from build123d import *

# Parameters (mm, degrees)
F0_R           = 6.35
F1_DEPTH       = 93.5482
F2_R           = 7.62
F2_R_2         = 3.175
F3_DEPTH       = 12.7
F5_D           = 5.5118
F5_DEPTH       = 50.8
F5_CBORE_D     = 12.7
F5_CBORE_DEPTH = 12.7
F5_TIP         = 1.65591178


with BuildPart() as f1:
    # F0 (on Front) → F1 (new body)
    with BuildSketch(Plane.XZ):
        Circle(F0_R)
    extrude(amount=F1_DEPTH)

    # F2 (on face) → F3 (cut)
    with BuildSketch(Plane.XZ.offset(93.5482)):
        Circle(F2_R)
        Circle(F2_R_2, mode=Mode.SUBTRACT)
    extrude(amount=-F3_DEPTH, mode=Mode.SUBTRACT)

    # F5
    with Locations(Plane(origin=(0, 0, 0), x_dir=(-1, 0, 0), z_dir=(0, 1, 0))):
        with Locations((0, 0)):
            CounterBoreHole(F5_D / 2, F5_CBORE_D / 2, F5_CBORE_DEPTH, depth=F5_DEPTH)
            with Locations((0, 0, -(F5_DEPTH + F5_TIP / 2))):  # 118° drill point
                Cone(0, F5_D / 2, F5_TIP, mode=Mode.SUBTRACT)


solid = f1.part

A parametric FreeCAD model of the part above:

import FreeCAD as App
import Part
import Sketcher

V = App.Vector
Q = App.Units.Quantity

doc = App.newDocument("Part")
params = doc.addObject("Spreadsheet::Sheet", "Params")
for row, (alias, value) in enumerate([
    ("sketch1_diameter", "0.5 in"),
    ("pad1_length", "3.683 in"),
    ("sketch2_diameter", "0.6 in"),
    ("sketch2_diameter2", "0.25 in"),
    ("pocket1_length", "0.5 in"),
    ("sketch3_diameter", "0.217 in"),
    ("hole_diameter", "0.217 in"),
    ("hole_depth", "2 in"),
    ("hole_cbore_diameter", "0.5 in"),
    ("hole_cbore_depth", "0.5 in"),
], start=1):
    params.set(f"A{row}", alias)
    params.set(f"B{row}", "=" + value)
    params.setAlias(f"B{row}", alias)

body = doc.addObject("PartDesign::Body", "Body")

# Sketch on XZ plane
sketch1 = doc.addObject("Sketcher::SketchObject", "Sketch")
body.addObject(sketch1)
sketch1.AttachmentSupport = (doc.XZ_Plane, [""])
sketch1.MapMode = "FlatFace"
sketch1.addGeometry(Part.Circle(V(0, 0, 0), V(0, 0, 1), 6), False)
sketch1.addConstraint([
    Sketcher.Constraint("Coincident", 0, 3, -1, 1),
    Sketcher.Constraint("Diameter", 0, Q("0.5 in")),
])
sketch1.setExpression("Constraints[1]", "Params.sketch1_diameter")
pad1 = doc.addObject("PartDesign::Pad", "Pad")
body.addObject(pad1)
pad1.Profile = sketch1
pad1.setExpression("Length", "Params.pad1_length")

# Sketch on XZ plane
sketch2 = doc.addObject("Sketcher::SketchObject", "Sketch001")
body.addObject(sketch2)
sketch2.AttachmentSupport = (doc.XZ_Plane, [""])
sketch2.MapMode = "FlatFace"
sketch2.AttachmentOffset = App.Placement(V(0, 0, 3.683 * 25.4), App.Rotation())
sketch2.addGeometry([
    Part.Circle(V(0, 0, 0), V(0, 0, 1), 7.6),
    Part.Circle(V(0, 0, 0), V(0, 0, 1), 3.2),
], False)
sketch2.addConstraint([
    Sketcher.Constraint("Coincident", 0, 3, -1, 1),
    Sketcher.Constraint("Coincident", 1, 3, -1, 1),
    Sketcher.Constraint("Diameter", 0, Q("0.6 in")),
    Sketcher.Constraint("Diameter", 1, Q("0.25 in")),
])
sketch2.setExpression("Constraints[2]", "Params.sketch2_diameter")
sketch2.setExpression("Constraints[3]", "Params.sketch2_diameter2")
pocket1 = doc.addObject("PartDesign::Pocket", "Pocket")
body.addObject(pocket1)
pocket1.Profile = sketch2
pocket1.setExpression("Length", "Params.pocket1_length")

# Sketch on XZ plane
sketch3 = doc.addObject("Sketcher::SketchObject", "Sketch002")
body.addObject(sketch3)
sketch3.AttachmentSupport = (doc.XZ_Plane, [""])
sketch3.MapMode = "FlatFace"
sketch3.addGeometry(Part.Circle(V(0, 0, 0), V(0, 0, 1), 2.8), False)
sketch3.addConstraint([
    Sketcher.Constraint("Coincident", 0, 3, -1, 1),
    Sketcher.Constraint("Diameter", 0, Q("0.217 in")),
])
sketch3.setExpression("Constraints[1]", "Params.sketch3_diameter")
doc.recompute()
hole = doc.addObject("PartDesign::Hole", "Hole")
body.addObject(hole)
hole.Profile = sketch3
hole.ThreadType = "None"
hole.setExpression("Diameter", "Params.hole_diameter")
hole.DepthType = "Dimension"
hole.setExpression("Depth", "Params.hole_depth")
hole.DrillPoint = "Angled"
hole.DrillPointAngle = 118
hole.HoleCutType = "Counterbore"
hole.setExpression("HoleCutDiameter", "Params.hole_cbore_diameter")
hole.setExpression("HoleCutDepth", "Params.hole_cbore_depth")
hole.Reversed = True

doc.recompute()
